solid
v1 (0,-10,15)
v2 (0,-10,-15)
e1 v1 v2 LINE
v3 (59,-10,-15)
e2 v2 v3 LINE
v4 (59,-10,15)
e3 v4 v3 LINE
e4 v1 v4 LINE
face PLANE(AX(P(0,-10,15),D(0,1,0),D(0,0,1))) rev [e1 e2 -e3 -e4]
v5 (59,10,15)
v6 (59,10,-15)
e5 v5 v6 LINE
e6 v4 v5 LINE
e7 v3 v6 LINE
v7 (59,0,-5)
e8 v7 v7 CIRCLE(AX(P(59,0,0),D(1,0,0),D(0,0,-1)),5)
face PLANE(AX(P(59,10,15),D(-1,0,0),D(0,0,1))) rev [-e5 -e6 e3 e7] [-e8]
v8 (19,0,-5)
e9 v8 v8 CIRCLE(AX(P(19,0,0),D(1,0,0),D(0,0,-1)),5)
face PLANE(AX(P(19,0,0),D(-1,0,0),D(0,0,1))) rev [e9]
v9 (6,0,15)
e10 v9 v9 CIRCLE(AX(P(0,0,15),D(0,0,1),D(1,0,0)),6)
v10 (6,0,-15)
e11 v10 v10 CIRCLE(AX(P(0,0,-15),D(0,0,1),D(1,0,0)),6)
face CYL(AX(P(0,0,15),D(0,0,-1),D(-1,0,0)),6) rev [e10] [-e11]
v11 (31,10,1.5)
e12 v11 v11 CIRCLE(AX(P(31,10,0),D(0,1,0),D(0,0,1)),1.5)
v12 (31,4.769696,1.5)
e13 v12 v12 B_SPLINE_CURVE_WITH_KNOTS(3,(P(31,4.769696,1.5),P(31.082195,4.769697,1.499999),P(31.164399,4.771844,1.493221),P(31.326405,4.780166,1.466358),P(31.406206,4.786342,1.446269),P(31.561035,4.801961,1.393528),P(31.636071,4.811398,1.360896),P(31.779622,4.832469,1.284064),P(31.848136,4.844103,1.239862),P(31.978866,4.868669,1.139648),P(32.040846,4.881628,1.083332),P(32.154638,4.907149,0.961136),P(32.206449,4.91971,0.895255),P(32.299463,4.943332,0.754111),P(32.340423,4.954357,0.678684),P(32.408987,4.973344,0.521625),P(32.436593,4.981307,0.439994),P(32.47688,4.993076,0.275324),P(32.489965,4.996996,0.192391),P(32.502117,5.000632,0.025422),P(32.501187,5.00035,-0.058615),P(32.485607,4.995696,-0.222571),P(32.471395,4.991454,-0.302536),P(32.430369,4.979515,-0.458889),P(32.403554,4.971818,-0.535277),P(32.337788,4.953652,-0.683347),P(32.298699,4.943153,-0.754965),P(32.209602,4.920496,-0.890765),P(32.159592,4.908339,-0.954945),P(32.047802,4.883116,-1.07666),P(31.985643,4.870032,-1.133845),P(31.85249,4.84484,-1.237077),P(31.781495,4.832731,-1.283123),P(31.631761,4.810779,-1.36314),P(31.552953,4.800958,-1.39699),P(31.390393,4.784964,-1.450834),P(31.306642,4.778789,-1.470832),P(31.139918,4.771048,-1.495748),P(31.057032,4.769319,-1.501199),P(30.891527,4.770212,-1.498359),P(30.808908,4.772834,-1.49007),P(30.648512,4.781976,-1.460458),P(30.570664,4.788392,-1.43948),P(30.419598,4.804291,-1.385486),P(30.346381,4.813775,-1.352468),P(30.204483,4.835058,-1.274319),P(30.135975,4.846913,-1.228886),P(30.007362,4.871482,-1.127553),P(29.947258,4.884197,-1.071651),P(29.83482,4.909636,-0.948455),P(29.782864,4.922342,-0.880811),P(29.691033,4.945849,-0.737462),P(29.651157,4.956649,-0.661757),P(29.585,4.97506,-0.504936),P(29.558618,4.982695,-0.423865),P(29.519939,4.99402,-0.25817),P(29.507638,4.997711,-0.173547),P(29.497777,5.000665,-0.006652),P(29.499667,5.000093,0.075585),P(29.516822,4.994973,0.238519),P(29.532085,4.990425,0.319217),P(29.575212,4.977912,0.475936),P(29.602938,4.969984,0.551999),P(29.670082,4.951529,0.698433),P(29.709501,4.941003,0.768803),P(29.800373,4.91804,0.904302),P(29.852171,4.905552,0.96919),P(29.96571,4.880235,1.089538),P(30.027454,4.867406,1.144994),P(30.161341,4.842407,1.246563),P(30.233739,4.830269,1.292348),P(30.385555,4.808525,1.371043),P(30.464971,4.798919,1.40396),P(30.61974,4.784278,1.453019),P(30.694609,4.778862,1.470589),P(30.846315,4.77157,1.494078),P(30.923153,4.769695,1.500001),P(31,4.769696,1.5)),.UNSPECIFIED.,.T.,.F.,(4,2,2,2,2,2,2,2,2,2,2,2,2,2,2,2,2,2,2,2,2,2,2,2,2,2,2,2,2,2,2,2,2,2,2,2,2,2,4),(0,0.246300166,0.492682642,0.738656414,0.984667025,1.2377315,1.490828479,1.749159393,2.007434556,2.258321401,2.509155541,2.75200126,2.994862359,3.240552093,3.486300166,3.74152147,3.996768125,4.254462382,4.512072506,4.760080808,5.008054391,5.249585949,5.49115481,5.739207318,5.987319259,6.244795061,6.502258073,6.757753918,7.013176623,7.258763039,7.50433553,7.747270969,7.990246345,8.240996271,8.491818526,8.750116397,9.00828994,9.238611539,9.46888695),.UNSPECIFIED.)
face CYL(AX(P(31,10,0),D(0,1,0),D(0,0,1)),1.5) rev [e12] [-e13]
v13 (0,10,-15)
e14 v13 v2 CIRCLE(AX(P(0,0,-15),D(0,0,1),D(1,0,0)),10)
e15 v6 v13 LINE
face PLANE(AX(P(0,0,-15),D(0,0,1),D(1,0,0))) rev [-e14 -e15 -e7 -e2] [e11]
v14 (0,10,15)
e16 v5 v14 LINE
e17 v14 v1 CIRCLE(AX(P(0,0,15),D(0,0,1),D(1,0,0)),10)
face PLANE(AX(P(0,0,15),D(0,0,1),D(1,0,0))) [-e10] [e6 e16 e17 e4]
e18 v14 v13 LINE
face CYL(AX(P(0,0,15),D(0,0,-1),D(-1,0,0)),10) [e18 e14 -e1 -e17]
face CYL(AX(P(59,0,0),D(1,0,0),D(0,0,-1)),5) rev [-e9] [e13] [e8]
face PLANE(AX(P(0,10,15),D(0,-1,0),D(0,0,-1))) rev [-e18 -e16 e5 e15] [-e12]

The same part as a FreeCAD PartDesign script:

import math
import FreeCAD as App
import Part
import Sketcher
from FreeCAD import Vector
Q = App.Units.Quantity

doc = App.newDocument("Part")
body = doc.addObject("PartDesign::Body", "Body")

# Sketch on XY plane
sketch1 = body.newObject("Sketcher::SketchObject", "Sketch")
sketch1.AttachmentSupport = (doc.getObject("XY_Plane"), [""])
sketch1.MapMode = "FlatFace"
sketch1.addGeometry([
    Part.LineSegment(Vector(0, -10, 0), Vector(59, -10, 0)),  # 0
    Part.LineSegment(Vector(59, -10, 0), Vector(59, 10, 0)),  # 1
    Part.LineSegment(Vector(59, 10, 0), Vector(0, 10, 0)),  # 2
    Part.ArcOfCircle(Part.Circle(Vector(0, 0, 0), Vector(0, 0, 1), 10), math.radians(90), math.radians(270)),  # 3
    Part.Circle(Vector(0, 0, 0), Vector(0, 0, 1), 6),  # 4
], False)
sketch1.addConstraint([
    Sketcher.Constraint("Coincident", 0, 2, 1, 1),
    Sketcher.Constraint("Coincident", 1, 2, 2, 1),
    Sketcher.Constraint("Tangent", 2, 2, 3, 1),
    Sketcher.Constraint("Tangent", 3, 2, 0, 1),
    Sketcher.Constraint("Horizontal", 0),
    Sketcher.Constraint("Vertical", 1),
    Sketcher.Constraint("Horizontal", 2),
    Sketcher.Constraint("Coincident", 3, 3, -1, 1),
    Sketcher.Constraint("Coincident", 4, 3, -1, 1),
    Sketcher.Constraint("Diameter", 4, Q("12 mm")),
    Sketcher.Constraint("Radius", 3, Q("10 mm")),
    Sketcher.Constraint("DistanceX", 0, 1, 0, 2, Q("59 mm")),
])
pad1 = body.newObject("PartDesign::Pad", "Pad")
pad1.Profile = sketch1
pad1.Length = 30
pad1.Midplane = True

# Sketch on YZ plane
sketch2 = body.newObject("Sketcher::SketchObject", "Sketch001")
sketch2.AttachmentSupport = (doc.getObject("YZ_Plane"), [""])
sketch2.MapMode = "FlatFace"
sketch2.AttachmentOffset = App.Placement(Vector(0, 0, 59), App.Rotation())
sketch2.addGeometry(Part.Circle(Vector(0, 0, 0), Vector(0, 0, 1), 5), False)
sketch2.addConstraint([
    Sketcher.Constraint("Coincident", 0, 3, -1, 1),
    Sketcher.Constraint("Diameter", 0, Q("10 mm")),
])
doc.recompute()
hole = body.newObject("PartDesign::Hole", "Hole")
hole.Profile = sketch2
hole.ThreadType = "None"
hole.Diameter = 10
hole.DepthType = "Dimension"
hole.Depth = 40
hole.DrillPoint = "Flat"

# Sketch on XZ plane
sketch3 = body.newObject("Sketcher::SketchObject", "Sketch002")
sketch3.AttachmentSupport = (doc.getObject("XZ_Plane"), [""])
sketch3.MapMode = "FlatFace"
sketch3.AttachmentOffset = App.Placement(Vector(0, 0, -10), App.Rotation())
sketch3.addGeometry(Part.Circle(Vector(31, 0, 0), Vector(0, 0, 1), 1.5), False)
sketch3.addConstraint([
    Sketcher.Constraint("PointOnObject", 0, 3, -1),
    Sketcher.Constraint("Diameter", 0, Q("3 mm")),
    Sketcher.Constraint("DistanceX", -1, 1, 0, 3, Q("31 mm")),
])
doc.recompute()
hole2 = body.newObject("PartDesign::Hole", "Hole001")
hole2.Profile = sketch3
hole2.ThreadType = "None"
hole2.Diameter = 3
hole2.DepthType = "Dimension"
hole2.Depth = 10
hole2.DrillPoint = "Angled"
hole2.DrillPointAngle = 118
hole2.Reversed = True

doc.recompute()
